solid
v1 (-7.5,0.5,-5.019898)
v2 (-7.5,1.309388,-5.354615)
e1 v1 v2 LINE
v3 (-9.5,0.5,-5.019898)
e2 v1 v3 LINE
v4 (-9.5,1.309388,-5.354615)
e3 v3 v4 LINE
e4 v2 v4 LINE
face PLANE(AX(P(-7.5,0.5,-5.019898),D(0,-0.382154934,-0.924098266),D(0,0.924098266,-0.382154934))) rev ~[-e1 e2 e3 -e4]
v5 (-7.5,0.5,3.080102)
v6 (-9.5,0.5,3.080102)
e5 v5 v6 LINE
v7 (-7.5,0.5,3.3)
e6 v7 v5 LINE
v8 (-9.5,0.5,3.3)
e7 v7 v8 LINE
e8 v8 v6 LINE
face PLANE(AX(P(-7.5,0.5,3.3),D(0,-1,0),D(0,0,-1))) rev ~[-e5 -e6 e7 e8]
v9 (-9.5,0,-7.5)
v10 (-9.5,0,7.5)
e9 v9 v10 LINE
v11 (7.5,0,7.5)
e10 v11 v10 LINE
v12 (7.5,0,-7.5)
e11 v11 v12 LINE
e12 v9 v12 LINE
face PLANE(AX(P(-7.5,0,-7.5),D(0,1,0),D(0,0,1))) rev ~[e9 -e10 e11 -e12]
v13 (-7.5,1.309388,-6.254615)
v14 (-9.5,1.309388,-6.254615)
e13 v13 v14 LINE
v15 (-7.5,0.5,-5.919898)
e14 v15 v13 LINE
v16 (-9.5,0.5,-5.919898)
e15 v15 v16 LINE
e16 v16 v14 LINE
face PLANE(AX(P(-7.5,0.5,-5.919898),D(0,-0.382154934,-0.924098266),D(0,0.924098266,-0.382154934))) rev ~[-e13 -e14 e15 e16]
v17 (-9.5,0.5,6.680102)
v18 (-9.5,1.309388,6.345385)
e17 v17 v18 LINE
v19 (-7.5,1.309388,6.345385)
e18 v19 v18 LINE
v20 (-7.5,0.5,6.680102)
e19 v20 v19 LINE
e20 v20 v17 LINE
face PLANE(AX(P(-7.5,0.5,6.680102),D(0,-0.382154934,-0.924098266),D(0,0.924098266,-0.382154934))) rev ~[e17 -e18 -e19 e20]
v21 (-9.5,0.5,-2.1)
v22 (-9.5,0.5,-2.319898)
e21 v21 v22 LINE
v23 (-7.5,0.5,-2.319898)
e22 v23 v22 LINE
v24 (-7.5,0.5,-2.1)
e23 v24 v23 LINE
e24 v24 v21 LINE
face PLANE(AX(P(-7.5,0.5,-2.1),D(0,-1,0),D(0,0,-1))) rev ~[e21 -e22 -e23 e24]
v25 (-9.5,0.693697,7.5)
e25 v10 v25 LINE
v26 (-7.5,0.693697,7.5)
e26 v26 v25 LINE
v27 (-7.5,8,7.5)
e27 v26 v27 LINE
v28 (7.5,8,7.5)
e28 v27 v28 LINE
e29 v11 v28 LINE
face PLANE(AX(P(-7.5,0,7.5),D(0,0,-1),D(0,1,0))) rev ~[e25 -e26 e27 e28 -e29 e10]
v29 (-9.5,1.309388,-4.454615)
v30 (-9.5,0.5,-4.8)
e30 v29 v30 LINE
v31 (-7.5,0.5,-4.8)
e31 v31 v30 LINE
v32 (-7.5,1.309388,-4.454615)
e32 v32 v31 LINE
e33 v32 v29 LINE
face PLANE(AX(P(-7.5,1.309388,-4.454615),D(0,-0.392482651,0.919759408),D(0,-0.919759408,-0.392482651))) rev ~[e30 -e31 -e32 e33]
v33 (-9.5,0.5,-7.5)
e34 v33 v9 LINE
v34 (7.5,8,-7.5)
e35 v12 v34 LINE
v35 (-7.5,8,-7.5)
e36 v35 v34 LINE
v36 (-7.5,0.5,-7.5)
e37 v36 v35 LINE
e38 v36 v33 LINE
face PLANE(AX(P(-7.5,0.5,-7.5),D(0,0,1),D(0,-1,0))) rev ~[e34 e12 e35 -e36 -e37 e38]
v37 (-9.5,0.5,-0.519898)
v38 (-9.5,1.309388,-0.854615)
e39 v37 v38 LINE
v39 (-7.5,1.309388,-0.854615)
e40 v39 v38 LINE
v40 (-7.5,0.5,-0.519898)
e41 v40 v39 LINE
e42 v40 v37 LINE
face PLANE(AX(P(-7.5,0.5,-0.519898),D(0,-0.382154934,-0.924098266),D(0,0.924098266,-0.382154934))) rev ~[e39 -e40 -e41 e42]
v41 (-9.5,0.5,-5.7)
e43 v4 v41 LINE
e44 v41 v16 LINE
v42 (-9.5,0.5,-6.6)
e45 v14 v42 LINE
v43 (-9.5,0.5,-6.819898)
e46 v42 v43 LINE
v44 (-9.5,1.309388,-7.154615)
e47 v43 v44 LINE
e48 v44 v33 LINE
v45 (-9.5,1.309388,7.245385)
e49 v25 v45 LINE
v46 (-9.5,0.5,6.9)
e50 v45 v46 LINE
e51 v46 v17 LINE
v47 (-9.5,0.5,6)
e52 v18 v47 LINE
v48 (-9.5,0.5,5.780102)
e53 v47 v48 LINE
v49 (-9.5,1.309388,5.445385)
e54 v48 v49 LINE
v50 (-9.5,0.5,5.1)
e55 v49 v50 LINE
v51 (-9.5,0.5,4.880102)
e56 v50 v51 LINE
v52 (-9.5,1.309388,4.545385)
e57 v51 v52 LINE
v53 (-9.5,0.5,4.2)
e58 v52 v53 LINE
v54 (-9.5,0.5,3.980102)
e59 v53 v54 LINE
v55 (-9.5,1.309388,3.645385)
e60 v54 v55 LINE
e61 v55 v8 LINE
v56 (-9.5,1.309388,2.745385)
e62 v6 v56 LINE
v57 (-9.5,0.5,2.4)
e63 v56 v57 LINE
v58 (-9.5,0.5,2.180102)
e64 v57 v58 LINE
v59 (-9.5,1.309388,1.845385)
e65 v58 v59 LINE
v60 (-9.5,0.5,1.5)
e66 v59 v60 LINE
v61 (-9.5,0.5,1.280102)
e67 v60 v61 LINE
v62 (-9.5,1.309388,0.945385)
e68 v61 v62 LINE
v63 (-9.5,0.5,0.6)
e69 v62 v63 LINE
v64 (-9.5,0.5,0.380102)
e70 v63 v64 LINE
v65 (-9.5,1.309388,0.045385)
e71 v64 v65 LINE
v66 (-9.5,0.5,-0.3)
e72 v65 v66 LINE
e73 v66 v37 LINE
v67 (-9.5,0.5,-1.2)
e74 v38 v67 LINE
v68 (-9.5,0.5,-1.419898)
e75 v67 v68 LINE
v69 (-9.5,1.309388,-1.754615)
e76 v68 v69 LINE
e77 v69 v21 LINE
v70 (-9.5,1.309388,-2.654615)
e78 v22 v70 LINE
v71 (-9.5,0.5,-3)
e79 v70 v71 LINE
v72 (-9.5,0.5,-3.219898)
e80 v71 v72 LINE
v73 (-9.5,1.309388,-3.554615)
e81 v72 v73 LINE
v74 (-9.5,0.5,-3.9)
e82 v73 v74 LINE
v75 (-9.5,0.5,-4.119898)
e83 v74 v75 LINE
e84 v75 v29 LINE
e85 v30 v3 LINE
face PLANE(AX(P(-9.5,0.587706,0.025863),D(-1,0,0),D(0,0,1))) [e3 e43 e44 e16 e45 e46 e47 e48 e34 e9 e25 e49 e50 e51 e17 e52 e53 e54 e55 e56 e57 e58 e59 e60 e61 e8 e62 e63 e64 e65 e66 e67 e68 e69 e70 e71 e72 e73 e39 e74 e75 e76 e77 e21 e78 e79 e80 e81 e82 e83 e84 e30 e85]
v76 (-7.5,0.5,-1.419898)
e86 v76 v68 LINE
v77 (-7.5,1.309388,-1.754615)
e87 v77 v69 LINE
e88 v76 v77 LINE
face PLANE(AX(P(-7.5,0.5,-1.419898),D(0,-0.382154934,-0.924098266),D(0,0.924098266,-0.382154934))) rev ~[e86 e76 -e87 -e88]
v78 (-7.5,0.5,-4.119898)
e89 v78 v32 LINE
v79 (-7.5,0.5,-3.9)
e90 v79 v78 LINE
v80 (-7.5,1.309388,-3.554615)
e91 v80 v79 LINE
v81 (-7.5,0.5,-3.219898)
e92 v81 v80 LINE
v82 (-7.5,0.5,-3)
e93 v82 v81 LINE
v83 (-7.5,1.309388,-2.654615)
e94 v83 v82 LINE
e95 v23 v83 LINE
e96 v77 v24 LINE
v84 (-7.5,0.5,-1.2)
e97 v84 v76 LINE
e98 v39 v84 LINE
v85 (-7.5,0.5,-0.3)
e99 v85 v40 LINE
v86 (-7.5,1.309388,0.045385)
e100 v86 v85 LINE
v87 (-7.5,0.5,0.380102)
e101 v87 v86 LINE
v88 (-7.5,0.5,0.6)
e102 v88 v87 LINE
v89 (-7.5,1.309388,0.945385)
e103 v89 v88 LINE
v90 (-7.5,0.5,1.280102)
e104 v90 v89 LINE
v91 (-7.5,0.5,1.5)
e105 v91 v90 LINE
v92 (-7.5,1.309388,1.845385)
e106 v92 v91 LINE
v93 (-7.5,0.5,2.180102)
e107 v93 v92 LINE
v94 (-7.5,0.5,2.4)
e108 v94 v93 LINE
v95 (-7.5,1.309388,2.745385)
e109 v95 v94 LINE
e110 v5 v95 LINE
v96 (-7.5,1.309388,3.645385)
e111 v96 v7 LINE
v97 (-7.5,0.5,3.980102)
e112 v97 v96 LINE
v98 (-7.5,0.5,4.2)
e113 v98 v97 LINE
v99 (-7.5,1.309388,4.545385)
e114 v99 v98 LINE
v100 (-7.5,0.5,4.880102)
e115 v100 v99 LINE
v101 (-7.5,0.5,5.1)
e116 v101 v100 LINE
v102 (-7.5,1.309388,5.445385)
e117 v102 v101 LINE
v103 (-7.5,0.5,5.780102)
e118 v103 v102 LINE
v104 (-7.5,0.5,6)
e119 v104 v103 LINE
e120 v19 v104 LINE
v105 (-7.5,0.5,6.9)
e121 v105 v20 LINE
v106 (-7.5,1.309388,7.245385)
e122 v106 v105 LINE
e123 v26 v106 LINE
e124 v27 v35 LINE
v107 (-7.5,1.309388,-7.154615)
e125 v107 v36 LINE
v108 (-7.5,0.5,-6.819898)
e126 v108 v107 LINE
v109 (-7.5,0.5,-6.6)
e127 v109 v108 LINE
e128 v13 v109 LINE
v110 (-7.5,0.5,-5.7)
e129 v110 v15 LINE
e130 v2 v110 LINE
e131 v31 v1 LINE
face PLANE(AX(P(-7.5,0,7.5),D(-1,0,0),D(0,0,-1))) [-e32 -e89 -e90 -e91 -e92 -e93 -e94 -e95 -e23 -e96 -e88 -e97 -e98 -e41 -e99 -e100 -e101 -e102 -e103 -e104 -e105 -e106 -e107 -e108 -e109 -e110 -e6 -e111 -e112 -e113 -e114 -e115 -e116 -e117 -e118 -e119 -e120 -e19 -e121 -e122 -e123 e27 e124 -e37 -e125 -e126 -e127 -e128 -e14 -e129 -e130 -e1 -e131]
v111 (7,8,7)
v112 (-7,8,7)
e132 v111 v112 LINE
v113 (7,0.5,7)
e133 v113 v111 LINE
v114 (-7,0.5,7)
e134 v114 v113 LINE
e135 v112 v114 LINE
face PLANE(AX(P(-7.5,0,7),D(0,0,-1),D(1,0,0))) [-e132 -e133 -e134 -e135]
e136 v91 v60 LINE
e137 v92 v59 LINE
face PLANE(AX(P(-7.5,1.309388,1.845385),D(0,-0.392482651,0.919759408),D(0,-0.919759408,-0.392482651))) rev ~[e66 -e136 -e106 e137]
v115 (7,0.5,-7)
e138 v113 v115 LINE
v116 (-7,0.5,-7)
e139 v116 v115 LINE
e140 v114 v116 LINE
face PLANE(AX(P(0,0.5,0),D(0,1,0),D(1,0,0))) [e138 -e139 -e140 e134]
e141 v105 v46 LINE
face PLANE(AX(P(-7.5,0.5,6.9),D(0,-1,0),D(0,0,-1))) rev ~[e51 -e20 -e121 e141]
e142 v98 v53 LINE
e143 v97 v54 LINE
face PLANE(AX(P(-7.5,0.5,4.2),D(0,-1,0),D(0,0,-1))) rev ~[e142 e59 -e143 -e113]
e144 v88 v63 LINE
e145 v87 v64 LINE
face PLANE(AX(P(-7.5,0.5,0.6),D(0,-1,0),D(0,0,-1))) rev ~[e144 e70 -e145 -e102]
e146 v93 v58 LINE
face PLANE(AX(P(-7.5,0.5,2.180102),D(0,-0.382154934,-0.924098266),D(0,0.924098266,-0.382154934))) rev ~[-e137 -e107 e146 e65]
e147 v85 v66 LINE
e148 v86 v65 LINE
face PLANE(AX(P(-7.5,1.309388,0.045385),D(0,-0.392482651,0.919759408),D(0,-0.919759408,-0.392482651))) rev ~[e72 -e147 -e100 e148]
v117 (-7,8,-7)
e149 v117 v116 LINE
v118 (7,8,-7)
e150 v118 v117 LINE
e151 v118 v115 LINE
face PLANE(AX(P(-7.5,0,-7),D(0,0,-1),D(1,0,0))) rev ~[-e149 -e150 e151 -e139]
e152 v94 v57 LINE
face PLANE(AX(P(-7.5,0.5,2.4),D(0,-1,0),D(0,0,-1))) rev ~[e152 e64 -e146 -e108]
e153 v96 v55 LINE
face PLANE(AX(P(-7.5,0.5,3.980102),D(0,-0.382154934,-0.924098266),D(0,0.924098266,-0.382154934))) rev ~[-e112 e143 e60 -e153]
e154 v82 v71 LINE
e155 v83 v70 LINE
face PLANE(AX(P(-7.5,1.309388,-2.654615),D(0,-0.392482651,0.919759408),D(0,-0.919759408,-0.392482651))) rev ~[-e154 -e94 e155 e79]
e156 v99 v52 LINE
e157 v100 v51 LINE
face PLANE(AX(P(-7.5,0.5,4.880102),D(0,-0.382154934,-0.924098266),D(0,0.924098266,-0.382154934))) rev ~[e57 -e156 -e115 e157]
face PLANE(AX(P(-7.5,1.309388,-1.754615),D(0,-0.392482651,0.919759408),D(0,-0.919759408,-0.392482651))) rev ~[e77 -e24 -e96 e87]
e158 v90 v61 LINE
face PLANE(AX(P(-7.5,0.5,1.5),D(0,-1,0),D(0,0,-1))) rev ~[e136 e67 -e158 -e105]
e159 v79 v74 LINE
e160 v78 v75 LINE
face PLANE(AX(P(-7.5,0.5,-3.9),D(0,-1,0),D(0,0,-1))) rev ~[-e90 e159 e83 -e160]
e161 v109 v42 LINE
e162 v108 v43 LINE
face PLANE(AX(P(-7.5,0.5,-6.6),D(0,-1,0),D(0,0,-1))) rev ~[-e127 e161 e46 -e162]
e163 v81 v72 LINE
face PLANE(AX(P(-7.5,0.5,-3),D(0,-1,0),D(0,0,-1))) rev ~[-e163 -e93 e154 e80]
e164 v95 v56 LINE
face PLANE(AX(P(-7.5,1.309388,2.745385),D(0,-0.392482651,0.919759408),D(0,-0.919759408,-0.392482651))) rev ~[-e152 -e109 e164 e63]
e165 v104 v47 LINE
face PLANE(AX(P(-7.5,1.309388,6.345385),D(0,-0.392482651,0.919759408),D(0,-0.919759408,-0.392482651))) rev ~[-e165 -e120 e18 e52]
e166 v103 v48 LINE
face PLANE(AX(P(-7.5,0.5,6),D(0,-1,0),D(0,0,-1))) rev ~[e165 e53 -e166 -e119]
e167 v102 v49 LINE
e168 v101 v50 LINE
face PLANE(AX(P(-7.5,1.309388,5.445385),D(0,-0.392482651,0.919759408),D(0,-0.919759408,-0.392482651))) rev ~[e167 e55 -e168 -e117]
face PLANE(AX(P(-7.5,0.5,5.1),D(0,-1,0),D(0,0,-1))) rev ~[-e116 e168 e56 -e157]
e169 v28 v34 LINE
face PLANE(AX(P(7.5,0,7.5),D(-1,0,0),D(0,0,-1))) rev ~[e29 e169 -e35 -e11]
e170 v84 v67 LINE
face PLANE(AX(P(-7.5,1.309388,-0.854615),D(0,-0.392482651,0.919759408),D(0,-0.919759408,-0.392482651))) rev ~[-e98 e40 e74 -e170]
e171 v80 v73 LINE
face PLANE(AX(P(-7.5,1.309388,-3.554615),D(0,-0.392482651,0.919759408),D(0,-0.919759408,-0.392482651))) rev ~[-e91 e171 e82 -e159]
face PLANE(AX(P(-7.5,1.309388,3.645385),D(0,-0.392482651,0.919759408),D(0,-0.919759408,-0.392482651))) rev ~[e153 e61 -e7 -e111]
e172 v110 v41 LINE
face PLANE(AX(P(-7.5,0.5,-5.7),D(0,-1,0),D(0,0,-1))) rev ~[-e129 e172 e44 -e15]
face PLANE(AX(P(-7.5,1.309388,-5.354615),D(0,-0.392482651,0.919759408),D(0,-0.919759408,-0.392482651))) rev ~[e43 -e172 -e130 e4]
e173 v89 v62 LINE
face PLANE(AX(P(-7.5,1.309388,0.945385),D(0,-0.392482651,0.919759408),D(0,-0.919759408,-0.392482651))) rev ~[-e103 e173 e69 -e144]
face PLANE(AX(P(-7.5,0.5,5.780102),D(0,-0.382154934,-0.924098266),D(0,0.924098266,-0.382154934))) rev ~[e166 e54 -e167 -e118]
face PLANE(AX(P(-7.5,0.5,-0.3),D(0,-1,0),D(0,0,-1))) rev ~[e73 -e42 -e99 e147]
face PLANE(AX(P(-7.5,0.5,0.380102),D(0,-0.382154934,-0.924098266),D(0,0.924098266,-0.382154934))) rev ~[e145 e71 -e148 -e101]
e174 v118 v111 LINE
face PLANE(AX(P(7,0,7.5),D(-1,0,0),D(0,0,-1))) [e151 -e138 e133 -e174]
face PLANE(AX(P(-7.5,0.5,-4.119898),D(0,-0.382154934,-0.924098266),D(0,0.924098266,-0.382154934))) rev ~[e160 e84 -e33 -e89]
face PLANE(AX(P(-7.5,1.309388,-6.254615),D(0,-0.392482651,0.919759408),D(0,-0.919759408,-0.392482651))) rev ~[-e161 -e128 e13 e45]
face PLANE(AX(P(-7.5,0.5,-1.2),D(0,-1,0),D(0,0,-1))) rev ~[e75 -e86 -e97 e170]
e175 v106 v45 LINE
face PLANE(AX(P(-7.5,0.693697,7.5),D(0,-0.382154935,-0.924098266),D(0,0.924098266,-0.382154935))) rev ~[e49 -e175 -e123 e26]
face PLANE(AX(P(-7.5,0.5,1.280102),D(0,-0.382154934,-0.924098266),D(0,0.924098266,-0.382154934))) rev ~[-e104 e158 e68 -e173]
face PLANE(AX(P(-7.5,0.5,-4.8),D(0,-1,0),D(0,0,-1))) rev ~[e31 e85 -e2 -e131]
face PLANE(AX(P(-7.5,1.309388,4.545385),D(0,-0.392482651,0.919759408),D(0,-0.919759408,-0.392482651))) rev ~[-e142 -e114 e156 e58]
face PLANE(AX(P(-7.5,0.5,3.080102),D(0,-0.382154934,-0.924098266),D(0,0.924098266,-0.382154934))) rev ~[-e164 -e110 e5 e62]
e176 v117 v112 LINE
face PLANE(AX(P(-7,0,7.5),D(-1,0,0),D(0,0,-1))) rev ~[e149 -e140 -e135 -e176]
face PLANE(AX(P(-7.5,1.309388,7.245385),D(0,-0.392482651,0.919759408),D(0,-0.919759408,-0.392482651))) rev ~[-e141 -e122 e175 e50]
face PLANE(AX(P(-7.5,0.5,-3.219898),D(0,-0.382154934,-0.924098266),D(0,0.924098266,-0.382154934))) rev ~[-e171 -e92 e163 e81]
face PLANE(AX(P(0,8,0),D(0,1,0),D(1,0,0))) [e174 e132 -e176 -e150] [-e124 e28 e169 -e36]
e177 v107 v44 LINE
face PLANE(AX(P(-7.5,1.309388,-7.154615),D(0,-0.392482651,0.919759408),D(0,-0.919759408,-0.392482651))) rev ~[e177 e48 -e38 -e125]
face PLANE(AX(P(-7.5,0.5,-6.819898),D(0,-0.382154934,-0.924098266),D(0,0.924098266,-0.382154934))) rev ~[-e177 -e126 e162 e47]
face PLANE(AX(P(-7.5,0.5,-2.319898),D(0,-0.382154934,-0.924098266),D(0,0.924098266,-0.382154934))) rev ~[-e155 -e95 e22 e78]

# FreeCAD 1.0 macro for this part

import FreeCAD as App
import Part
import Sketcher
from FreeCAD import Vector


def faces_at(feature, points):
    """Names of the faces that lie closest to the given points."""
    faces = feature.Shape.Faces
    near = lambda p: min(range(len(faces)), key=lambda i: faces[i].distToShape(Part.Vertex(*p))[0])
    return sorted({f"Face{near(p) + 1}" for p in points})


def add_polygon(sketch, points):
    """Adds a closed chain of lines whose ends are joined by coincident constraints."""
    first, n = sketch.GeometryCount, len(points)
    for a, b in zip(points, points[1:] + points[:1]):
        sketch.addGeometry(Part.LineSegment(App.Vector(*a, 0), App.Vector(*b, 0)), False)
    for i in range(n):
        sketch.addConstraint(Sketcher.Constraint("Coincident", first + i, 2, first + (i + 1) % n, 1))

doc = App.newDocument("Part")
body = doc.addObject("PartDesign::Body", "Body")

sketch1 = doc.addObject("Sketcher::SketchObject", "Sketch")
body.addObject(sketch1)
sketch1.AttachmentSupport = (doc.XZ_Plane, [""])
sketch1.MapMode = "FlatFace"
add_polygon(sketch1, [(-8, -8), (-8, 8), (8, 8), (8, -8)])
sketch1.addConstraint([
    Sketcher.Constraint("Vertical", 0),
    Sketcher.Constraint("Horizontal", 1),
    Sketcher.Constraint("Vertical", 2),
    Sketcher.Constraint("Horizontal", 3),
    Sketcher.Constraint("Symmetric", 0, 2, 2, 2, -1, 1),
    Sketcher.Constraint("Equal", 3, 0),
    Sketcher.Constraint("DistanceX", 1, 1, 1, 2, 15.0),
])
pad1 = doc.addObject("PartDesign::Pad", "Pad")
body.addObject(pad1)
pad1.Profile = sketch1
pad1.Length = 8
pad1.Reversed = True
doc.recompute()

thickness = doc.addObject("PartDesign::Thickness", "Thickness")
body.addObject(thickness)
thickness.Base = (pad1, faces_at(pad1, [(0, 8, 0)]))
thickness.Value = 0.5
thickness.Reversed = True
thickness.Join = "Intersection"

sketch2 = doc.addObject("Sketcher::SketchObject", "Sketch001")
body.addObject(sketch2)
sketch2.AttachmentSupport = (doc.YZ_Plane, [""])
sketch2.MapMode = "FlatFace"
sketch2.AttachmentOffset = App.Placement(Vector(0, 0, -7.5), App.Rotation())
add_polygon(sketch2, [(0, -7.5), (0, 7.5), (0.69, 7.5), (1.31, 7.25), (0.5, 6.9), (0.5, 6.68), (1.31, 6.35), (0.5, 6), (0.5, 5.78), (1.31, 5.45), (0.5, 5.1), (0.5, 4.88), (1.31, 4.55), (0.5, 4.2), (0.5, 3.98), (1.31, 3.65), (0.5, 3.3), (0.5, 3.08), (1.31, 2.75), (0.5, 2.4), (0.5, 2.18), (1.31, 1.85), (0.5, 1.5), (0.5, 1.28), (1.31, 0.95), (0.5, 0.6), (0.5, 0.38), (1.31, 0.05), (0.5, -0.3), (0.5, -0.52), (1.31, -0.85), (0.5, -1.2), (0.5, -1.42), (1.31, -1.75), (0.5, -2.1), (0.5, -2.32), (1.31, -2.65), (0.5, -3), (0.5, -3.22), (1.31, -3.55), (0.5, -3.9), (0.5, -4.12), (1.31, -4.45), (0.5, -4.8), (0.5, -5.02), (1.31, -5.35), (0.5, -5.7), (0.5, -5.92), (1.31, -6.25), (0.5, -6.6), (0.5, -6.82), (1.31, -7.15), (0.5, -7.5)])
sketch2.addConstraint([
    Sketcher.Constraint("Vertical", 0),
    Sketcher.Constraint("Horizontal", 1),
    Sketcher.Constraint("Vertical", 4),
    Sketcher.Constraint("Vertical", 7),
    Sketcher.Constraint("Vertical", 10),
    Sketcher.Constraint("Vertical", 13),
    Sketcher.Constraint("Vertical", 16),
    Sketcher.Constraint("Vertical", 19),
    Sketcher.Constraint("Vertical", 22),
    Sketcher.Constraint("Vertical", 25),
    Sketcher.Constraint("Vertical", 28),
    Sketcher.Constraint("Vertical", 31),
    Sketcher.Constraint("Vertical", 34),
    Sketcher.Constraint("Vertical", 37),
    Sketcher.Constraint("Vertical", 40),
    Sketcher.Constraint("Vertical", 43),
    Sketcher.Constraint("Vertical", 46),
    Sketcher.Constraint("Vertical", 49),
    Sketcher.Constraint("Horizontal", 52),
    Sketcher.Constraint("Symmetric", 0, 2, 52, 2, -1, 1),
    Sketcher.Constraint("Parallel", 2, 5),
    Sketcher.Constraint("Parallel", 3, 6),
    Sketcher.Constraint("Parallel", 5, 8),
    Sketcher.Constraint("Parallel", 6, 9),
    Sketcher.Constraint("Parallel", 8, 11),
    Sketcher.Constraint("Parallel", 9, 12),
    Sketcher.Constraint("Parallel", 11, 14),
    Sketcher.Constraint("Parallel", 12, 15),
    Sketcher.Constraint("Parallel", 14, 17),
    Sketcher.Constraint("Parallel", 15, 18),
    Sketcher.Constraint("Parallel", 17, 20),
    Sketcher.Constraint("Parallel", 18, 21),
    Sketcher.Constraint("Parallel", 20, 23),
    Sketcher.Constraint("Parallel", 21, 24),
    Sketcher.Constraint("Parallel", 23, 26),
    Sketcher.Constraint("Parallel", 24, 27),
    Sketcher.Constraint("Parallel", 26, 29),
    Sketcher.Constraint("Parallel", 27, 30),
    Sketcher.Constraint("Parallel", 29, 32),
    Sketcher.Constraint("Parallel", 30, 33),
    Sketcher.Constraint("Parallel", 32, 35),
    Sketcher.Constraint("Parallel", 33, 36),
    Sketcher.Constraint("Parallel", 35, 38),
    Sketcher.Constraint("Parallel", 36, 39),
    Sketcher.Constraint("Parallel", 38, 41),
    Sketcher.Constraint("Parallel", 39, 42),
    Sketcher.Constraint("Parallel", 41, 44),
    Sketcher.Constraint("Parallel", 42, 45),
    Sketcher.Constraint("Parallel", 44, 47),
    Sketcher.Constraint("Parallel", 45, 48),
    Sketcher.Constraint("Parallel", 47, 50),
    Sketcher.Constraint("Parallel", 48, 51),
    Sketcher.Constraint("Vertical", 2, 2, 5, 2),
    Sketcher.Constraint("Vertical", 4, 2, 6, 2),
    Sketcher.Constraint("Vertical", 5, 2, 8, 2),
    Sketcher.Constraint("Vertical", 7, 2, 9, 2),
    Sketcher.Constraint("Vertical", 8, 2, 11, 2),
    Sketcher.Constraint("Vertical", 10, 2, 12, 2),
    Sketcher.Constraint("Vertical", 11, 2, 14, 2),
    Sketcher.Constraint("Vertical", 13, 2, 15, 2),
    Sketcher.Constraint("Vertical", 14, 2, 17, 2),
    Sketcher.Constraint("Vertical", 16, 2, 18, 2),
    Sketcher.Constraint("Vertical", 17, 2, 20, 2),
    Sketcher.Constraint("Vertical", 19, 2, 21, 2),
    Sketcher.Constraint("Vertical", 20, 2, 23, 2),
    Sketcher.Constraint("Vertical", 22, 2, 24, 2),
    Sketcher.Constraint("Vertical", 23, 2, 26, 2),
    Sketcher.Constraint("Vertical", 25, 2, 27, 2),
    Sketcher.Constraint("Vertical", 26, 2, 29, 2),
    Sketcher.Constraint("Vertical", 28, 2, 30, 2),
    Sketcher.Constraint("Vertical", 29, 2, 32, 2),
    Sketcher.Constraint("Vertical", 31, 2, 33, 2),
    Sketcher.Constraint("Vertical", 32, 2, 35, 2),
    Sketcher.Constraint("Vertical", 34, 2, 36, 2),
    Sketcher.Constraint("Vertical", 35, 2, 38, 2),
    Sketcher.Constraint("Vertical", 37, 2, 39, 2),
    Sketcher.Constraint("Vertical", 38, 2, 41, 2),
    Sketcher.Constraint("Vertical", 40, 2, 42, 2),
    Sketcher.Constraint("Vertical", 41, 2, 44, 2),
    Sketcher.Constraint("Vertical", 43, 2, 45, 2),
    Sketcher.Constraint("Vertical", 44, 2, 47, 2),
    Sketcher.Constraint("Vertical", 46, 2, 48, 2),
    Sketcher.Constraint("Vertical", 47, 2, 50, 2),
    Sketcher.Constraint("Vertical", 49, 2, 51, 2),
    Sketcher.Constraint("Equal", 4, 7),
    Sketcher.Constraint("Equal", 7, 10),
    Sketcher.Constraint("Equal", 10, 13),
    Sketcher.Constraint("Equal", 13, 16),
    Sketcher.Constraint("Equal", 16, 19),
    Sketcher.Constraint("Equal", 19, 22),
    Sketcher.Constraint("Equal", 22, 25),
    Sketcher.Constraint("Equal", 25, 28),
    Sketcher.Constraint("Equal", 28, 31),
    Sketcher.Constraint("Equal", 31, 34),
    Sketcher.Constraint("Equal", 34, 37),
    Sketcher.Constraint("Equal", 37, 40),
    Sketcher.Constraint("Equal", 40, 43),
    Sketcher.Constraint("Equal", 43, 46),
    Sketcher.Constraint("Equal", 46, 49),
    Sketcher.Constraint("DistanceY", 0, 1, 0, 2, 15.0),
    Sketcher.Constraint("DistanceX", 52, 2, 52, 1, 0.5),
    Sketcher.Constraint("DistanceY", -1, 1, 6, 2, 6.0),
    Sketcher.Constraint("Distance", 3, 0.88),
    Sketcher.Constraint("Distance", 2, 0.666262),
    Sketcher.Constraint("Distance", 5, 0.875868),
])
pad2 = doc.addObject("PartDesign::Pad", "Pad001")
body.addObject(pad2)
pad2.Profile = sketch2
pad2.Length = 2
pad2.Reversed = True

doc.recompute()
